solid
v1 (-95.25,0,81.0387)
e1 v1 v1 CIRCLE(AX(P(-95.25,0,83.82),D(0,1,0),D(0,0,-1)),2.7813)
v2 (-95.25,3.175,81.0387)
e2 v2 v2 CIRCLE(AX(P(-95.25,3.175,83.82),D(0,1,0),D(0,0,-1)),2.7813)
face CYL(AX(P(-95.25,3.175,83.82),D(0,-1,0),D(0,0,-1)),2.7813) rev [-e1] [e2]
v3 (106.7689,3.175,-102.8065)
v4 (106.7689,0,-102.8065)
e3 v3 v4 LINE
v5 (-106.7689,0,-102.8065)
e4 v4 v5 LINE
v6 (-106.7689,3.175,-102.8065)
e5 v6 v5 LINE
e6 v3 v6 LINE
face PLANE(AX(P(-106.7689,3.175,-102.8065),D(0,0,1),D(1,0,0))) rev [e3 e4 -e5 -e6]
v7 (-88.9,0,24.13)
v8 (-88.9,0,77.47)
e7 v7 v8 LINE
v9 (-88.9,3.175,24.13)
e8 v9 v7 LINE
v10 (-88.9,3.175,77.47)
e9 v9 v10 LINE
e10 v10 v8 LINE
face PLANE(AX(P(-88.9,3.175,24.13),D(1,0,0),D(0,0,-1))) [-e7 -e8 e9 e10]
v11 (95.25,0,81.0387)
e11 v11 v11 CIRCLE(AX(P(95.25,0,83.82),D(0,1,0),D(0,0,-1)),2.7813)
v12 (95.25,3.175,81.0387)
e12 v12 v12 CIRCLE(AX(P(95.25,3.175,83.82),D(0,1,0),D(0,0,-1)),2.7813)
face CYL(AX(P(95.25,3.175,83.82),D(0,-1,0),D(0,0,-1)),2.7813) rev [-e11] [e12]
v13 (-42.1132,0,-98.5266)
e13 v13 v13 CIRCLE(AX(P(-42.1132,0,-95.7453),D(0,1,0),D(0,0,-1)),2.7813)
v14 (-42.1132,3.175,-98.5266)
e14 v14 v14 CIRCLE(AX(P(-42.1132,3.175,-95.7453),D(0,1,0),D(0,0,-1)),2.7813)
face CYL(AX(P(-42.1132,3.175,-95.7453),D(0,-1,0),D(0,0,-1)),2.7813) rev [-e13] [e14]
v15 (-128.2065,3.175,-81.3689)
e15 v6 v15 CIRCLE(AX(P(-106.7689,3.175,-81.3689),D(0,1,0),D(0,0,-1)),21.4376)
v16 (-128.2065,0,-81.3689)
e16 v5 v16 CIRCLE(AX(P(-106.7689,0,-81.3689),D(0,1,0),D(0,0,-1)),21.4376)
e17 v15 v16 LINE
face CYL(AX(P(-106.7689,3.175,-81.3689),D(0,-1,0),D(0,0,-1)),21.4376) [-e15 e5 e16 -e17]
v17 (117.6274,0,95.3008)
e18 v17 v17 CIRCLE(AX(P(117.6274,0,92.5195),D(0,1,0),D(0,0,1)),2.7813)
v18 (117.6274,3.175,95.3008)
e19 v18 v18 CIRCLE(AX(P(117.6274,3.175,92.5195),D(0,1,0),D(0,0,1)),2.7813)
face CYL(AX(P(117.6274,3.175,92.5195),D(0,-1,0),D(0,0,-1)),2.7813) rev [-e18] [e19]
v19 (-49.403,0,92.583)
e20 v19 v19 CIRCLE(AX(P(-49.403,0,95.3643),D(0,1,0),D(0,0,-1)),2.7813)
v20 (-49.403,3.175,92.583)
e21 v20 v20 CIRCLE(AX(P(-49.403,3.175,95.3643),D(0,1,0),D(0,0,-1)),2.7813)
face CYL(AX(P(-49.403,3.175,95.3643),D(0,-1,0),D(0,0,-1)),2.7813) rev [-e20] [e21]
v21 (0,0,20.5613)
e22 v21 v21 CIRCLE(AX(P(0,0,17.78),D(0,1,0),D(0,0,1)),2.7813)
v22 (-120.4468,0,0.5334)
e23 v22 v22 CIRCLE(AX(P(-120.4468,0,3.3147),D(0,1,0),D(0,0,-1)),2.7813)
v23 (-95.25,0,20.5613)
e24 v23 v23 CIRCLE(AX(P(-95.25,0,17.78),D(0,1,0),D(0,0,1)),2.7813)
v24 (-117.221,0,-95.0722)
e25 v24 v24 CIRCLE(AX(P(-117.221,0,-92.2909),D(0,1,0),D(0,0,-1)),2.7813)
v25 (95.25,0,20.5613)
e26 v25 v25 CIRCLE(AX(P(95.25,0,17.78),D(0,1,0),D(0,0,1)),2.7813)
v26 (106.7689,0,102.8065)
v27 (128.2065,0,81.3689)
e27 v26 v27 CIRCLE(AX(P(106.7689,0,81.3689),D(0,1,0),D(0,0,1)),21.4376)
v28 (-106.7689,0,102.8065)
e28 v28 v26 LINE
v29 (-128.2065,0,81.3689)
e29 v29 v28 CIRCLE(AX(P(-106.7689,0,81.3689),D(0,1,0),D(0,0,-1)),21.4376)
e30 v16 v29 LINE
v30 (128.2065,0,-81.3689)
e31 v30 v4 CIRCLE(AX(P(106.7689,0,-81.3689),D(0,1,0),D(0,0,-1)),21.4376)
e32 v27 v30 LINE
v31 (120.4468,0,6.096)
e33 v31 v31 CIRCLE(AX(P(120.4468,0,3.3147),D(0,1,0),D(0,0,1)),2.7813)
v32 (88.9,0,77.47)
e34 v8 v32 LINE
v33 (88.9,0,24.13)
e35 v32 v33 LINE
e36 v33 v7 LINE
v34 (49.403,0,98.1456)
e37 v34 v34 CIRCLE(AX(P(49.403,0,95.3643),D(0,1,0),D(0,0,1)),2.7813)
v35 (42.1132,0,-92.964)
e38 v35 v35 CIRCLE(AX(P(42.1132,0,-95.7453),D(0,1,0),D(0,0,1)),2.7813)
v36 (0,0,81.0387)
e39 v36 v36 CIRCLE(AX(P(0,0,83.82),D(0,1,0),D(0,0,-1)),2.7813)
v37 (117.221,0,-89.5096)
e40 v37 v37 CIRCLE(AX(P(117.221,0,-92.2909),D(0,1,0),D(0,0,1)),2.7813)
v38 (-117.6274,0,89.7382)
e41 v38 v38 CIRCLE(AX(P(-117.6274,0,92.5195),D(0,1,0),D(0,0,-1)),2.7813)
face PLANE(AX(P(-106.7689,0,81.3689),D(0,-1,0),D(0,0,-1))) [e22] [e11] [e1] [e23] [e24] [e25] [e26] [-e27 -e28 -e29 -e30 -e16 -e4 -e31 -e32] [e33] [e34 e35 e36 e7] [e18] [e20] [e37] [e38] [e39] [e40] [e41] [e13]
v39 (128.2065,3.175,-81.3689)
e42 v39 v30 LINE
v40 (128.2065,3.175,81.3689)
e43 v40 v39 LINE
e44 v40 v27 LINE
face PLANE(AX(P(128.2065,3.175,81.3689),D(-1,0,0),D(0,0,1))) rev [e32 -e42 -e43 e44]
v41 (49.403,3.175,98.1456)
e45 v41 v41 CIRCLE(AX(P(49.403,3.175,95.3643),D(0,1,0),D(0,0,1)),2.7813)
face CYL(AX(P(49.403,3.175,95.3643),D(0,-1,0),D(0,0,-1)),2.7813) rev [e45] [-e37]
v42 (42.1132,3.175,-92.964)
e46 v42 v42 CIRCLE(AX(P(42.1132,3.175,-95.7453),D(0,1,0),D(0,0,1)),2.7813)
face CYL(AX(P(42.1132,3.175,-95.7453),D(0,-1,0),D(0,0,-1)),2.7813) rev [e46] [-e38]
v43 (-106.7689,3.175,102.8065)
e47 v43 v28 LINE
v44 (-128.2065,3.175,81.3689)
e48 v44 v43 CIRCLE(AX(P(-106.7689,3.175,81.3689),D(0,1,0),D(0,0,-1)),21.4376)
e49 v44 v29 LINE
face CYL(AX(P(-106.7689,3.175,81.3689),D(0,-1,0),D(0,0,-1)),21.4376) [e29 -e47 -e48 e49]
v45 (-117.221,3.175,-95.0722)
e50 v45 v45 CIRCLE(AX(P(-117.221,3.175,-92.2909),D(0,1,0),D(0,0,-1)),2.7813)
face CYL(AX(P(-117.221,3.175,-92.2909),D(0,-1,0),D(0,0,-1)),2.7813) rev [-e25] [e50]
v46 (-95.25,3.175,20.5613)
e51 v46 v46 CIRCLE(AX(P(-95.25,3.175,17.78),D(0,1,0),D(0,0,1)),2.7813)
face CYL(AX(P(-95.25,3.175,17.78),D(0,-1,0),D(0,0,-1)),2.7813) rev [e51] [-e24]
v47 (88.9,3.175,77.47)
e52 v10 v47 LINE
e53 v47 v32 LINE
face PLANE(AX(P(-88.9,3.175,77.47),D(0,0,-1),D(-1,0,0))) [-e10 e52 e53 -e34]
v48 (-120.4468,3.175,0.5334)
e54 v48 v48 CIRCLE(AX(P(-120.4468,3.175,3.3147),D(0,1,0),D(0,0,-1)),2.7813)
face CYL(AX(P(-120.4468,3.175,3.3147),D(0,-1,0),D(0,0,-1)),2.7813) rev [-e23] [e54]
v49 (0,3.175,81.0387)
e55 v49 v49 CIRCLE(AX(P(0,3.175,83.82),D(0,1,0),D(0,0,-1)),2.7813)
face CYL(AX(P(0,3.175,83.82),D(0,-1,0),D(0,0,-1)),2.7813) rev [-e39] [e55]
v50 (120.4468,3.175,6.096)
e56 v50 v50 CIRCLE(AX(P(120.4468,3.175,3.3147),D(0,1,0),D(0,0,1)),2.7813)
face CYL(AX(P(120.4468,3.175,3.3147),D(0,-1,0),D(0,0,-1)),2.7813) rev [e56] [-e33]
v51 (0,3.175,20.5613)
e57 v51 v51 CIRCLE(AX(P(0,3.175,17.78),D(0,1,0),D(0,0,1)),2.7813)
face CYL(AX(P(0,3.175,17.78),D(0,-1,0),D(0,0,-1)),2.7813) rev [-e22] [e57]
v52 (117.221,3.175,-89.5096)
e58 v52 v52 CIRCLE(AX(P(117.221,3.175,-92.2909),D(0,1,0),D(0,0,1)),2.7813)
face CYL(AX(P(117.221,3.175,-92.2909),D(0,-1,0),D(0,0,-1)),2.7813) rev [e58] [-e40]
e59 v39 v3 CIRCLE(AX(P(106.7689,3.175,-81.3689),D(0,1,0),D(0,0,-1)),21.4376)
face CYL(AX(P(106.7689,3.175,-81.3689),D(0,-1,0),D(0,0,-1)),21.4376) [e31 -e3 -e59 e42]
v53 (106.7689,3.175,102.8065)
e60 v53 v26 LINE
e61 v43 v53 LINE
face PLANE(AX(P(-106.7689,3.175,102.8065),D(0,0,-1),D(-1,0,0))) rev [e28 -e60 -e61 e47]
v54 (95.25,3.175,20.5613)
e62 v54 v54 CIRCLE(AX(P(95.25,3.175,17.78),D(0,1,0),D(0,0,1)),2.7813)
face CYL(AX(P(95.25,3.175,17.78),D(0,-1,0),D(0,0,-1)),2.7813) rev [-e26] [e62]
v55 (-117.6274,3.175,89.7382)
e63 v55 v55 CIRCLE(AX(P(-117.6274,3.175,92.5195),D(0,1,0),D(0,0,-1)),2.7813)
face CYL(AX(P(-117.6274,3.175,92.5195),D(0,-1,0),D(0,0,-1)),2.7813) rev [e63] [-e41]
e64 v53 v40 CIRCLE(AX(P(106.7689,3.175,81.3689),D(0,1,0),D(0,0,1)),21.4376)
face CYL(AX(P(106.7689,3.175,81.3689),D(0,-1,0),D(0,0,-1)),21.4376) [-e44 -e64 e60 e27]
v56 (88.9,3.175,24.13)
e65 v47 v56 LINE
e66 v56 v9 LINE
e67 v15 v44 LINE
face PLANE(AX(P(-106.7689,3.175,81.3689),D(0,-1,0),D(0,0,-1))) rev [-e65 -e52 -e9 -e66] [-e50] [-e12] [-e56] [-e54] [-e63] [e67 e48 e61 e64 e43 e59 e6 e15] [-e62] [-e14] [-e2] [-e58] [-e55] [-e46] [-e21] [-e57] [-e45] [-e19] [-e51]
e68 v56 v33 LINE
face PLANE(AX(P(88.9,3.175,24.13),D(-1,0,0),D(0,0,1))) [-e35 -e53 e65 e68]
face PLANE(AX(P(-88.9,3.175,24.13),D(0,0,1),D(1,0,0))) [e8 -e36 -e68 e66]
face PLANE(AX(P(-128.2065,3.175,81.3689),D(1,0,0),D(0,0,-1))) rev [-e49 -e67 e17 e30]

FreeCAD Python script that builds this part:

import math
import FreeCAD as App
import Part
import Sketcher
Q = App.Units.Quantity

doc = App.newDocument("Part")
body = doc.addObject("PartDesign::Body", "Body")

# Sketch on XZ plane
sketch1 = body.newObject("Sketcher::SketchObject", "Sketch")
sketch1.AttachmentSupport = (doc.getObject("XZ_Plane"), [""])
sketch1.MapMode = "FlatFace"
sketch1.addGeometry(Part.LineSegment(App.Vector(-106.8, 102.8, 0), App.Vector(106.8, 102.8, 0)), False)
sketch1.addGeometry(Part.ArcOfCircle(Part.Circle(App.Vector(106.8, 81.4, 0), App.Vector(0, 0, 1), 21.4), math.radians(0), math.radians(90)), False)
sketch1.addGeometry(Part.LineSegment(App.Vector(128.2, 81.4, 0), App.Vector(128.2, -81.4, 0)), False)
sketch1.addGeometry(Part.ArcOfCircle(Part.Circle(App.Vector(106.8, -81.4, 0), App.Vector(0, 0, 1), 21.4), math.radians(-90), math.radians(0)), False)
sketch1.addGeometry(Part.LineSegment(App.Vector(106.8, -102.8, 0), App.Vector(-106.8, -102.8, 0)), False)
sketch1.addGeometry(Part.ArcOfCircle(Part.Circle(App.Vector(-106.8, -81.4, 0), App.Vector(0, 0, 1), 21.4), math.radians(-180), math.radians(-90)), False)
sketch1.addGeometry(Part.LineSegment(App.Vector(-128.2, -81.4, 0), App.Vector(-128.2, 81.4, 0)), False)
sketch1.addGeometry(Part.ArcOfCircle(Part.Circle(App.Vector(-106.8, 81.4, 0), App.Vector(0, 0, 1), 21.4), math.radians(90), math.radians(180)), False)
sketch1.addGeometry(Part.Circle(App.Vector(-117.6, 92.5, 0), App.Vector(0, 0, 1), 2.8), False)
sketch1.addGeometry(Part.Circle(App.Vector(-49.4, 95.4, 0), App.Vector(0, 0, 1), 2.8), False)
sketch1.addGeometry(Part.Circle(App.Vector(-120.4, 3.3, 0), App.Vector(0, 0, 1), 2.8), False)
sketch1.addGeometry(Part.Circle(App.Vector(49.4, 95.4, 0), App.Vector(0, 0, 1), 2.8), False)
sketch1.addGeometry(Part.Circle(App.Vector(117.6, 92.5, 0), App.Vector(0, 0, 1), 2.8), False)
sketch1.addGeometry(Part.Circle(App.Vector(120.4, 3.3, 0), App.Vector(0, 0, 1), 2.8), False)
sketch1.addGeometry(Part.Circle(App.Vector(-117.2, -92.3, 0), App.Vector(0, 0, 1), 2.8), False)
sketch1.addGeometry(Part.Circle(App.Vector(-42.1, -95.7, 0), App.Vector(0, 0, 1), 2.8), False)
sketch1.addGeometry(Part.Circle(App.Vector(42.1, -95.7, 0), App.Vector(0, 0, 1), 2.8), False)
sketch1.addGeometry(Part.Circle(App.Vector(117.2, -92.3, 0), App.Vector(0, 0, 1), 2.8), False)
sketch1.addConstraint(Sketcher.Constraint("Tangent", 0, 2, 1, 2))
sketch1.addConstraint(Sketcher.Constraint("Tangent", 1, 1, 2, 1))
sketch1.addConstraint(Sketcher.Constraint("Tangent", 2, 2, 3, 2))
sketch1.addConstraint(Sketcher.Constraint("Tangent", 3, 1, 4, 1))
sketch1.addConstraint(Sketcher.Constraint("Tangent", 4, 2, 5, 2))
sketch1.addConstraint(Sketcher.Constraint("Tangent", 5, 1, 6, 1))
sketch1.addConstraint(Sketcher.Constraint("Tangent", 6, 2, 7, 2))
sketch1.addConstraint(Sketcher.Constraint("Tangent", 7, 1, 0, 1))
sketch1.addConstraint(Sketcher.Constraint("Horizontal", 0))
sketch1.addConstraint(Sketcher.Constraint("Vertical", 2))
sketch1.addConstraint(Sketcher.Constraint("Horizontal", 4))
sketch1.addConstraint(Sketcher.Constraint("Vertical", 6))
sketch1.addConstraint(Sketcher.Constraint("Equal", 1, 3))
sketch1.addConstraint(Sketcher.Constraint("Equal", 3, 5))
sketch1.addConstraint(Sketcher.Constraint("Equal", 5, 7))
sketch1.addConstraint(Sketcher.Constraint("Equal", 8, 9))
sketch1.addConstraint(Sketcher.Constraint("Equal", 9, 10))
sketch1.addConstraint(Sketcher.Constraint("Equal", 10, 11))
sketch1.addConstraint(Sketcher.Constraint("Equal", 11, 12))
sketch1.addConstraint(Sketcher.Constraint("Equal", 12, 13))
sketch1.addConstraint(Sketcher.Constraint("Equal", 13, 14))
sketch1.addConstraint(Sketcher.Constraint("Equal", 14, 15))
sketch1.addConstraint(Sketcher.Constraint("Equal", 15, 16))
sketch1.addConstraint(Sketcher.Constraint("Equal", 16, 17))
sketch1.addConstraint(Sketcher.Constraint("Symmetric", 1, 3, 5, 3, -1, 1))
sketch1.addConstraint(Sketcher.Constraint("Symmetric", 9, 3, 11, 3, -2))
sketch1.addConstraint(Sketcher.Constraint("Symmetric", 8, 3, 12, 3, -2))
sketch1.addConstraint(Sketcher.Constraint("Symmetric", 10, 3, 13, 3, -2))
sketch1.addConstraint(Sketcher.Constraint("Symmetric", 15, 3, 16, 3, -2))
sketch1.addConstraint(Sketcher.Constraint("Symmetric", 14, 3, 17, 3, -2))
sketch1.addConstraint(Sketcher.Constraint("Diameter", 8, Q("0.219 in")))
sketch1.addConstraint(Sketcher.Constraint("Radius", 1, Q("0.844 in")))
sketch1.addConstraint(Sketcher.Constraint("DistanceY", 15, 3, 10, 3, Q("3.9 in")))
sketch1.addConstraint(Sketcher.Constraint("DistanceX", 0, 1, 0, 2, Q("8.407 in")))
sketch1.addConstraint(Sketcher.Constraint("DistanceY", 2, 2, 2, 1, Q("6.407 in")))
sketch1.addConstraint(Sketcher.Constraint("DistanceX", 9, 3, 11, 3, Q("3.89 in")))
sketch1.addConstraint(Sketcher.Constraint("DistanceY", 14, 3, 5, 3, Q("0.43 in")))
sketch1.addConstraint(Sketcher.Constraint("DistanceX", 14, 3, 9, 3, Q("2.67 in")))
sketch1.addConstraint(Sketcher.Constraint("DistanceX", 8, 3, -1, 1, Q("4.631 in")))
sketch1.addConstraint(Sketcher.Constraint("DistanceX", 10, 3, -1, 1, Q("4.742 in")))
sketch1.addConstraint(Sketcher.Constraint("DistanceX", 15, 3, -1, 1, Q("1.658 in")))
sketch1.addConstraint(Sketcher.Constraint("DistanceY", 7, 3, 8, 3, Q("0.439 in")))
sketch1.addConstraint(Sketcher.Constraint("DistanceY", 7, 3, 9, 3, Q("0.551 in")))
sketch1.addConstraint(Sketcher.Constraint("DistanceY", 10, 3, 7, 3, Q("3.073 in")))
pad1 = body.newObject("PartDesign::Pad", "Pad")
pad1.Profile = sketch1
pad1.Length = Q("0.125 in")
pad1.Reversed = True

# Sketch on XZ plane
sketch2 = body.newObject("Sketcher::SketchObject", "Sketch001")
sketch2.AttachmentSupport = (doc.getObject("XZ_Plane"), [""])
sketch2.MapMode = "FlatFace"
sketch2.addGeometry(Part.LineSegment(App.Vector(-89, 24, 0), App.Vector(-89, 77, 0)), False)
sketch2.addGeometry(Part.LineSegment(App.Vector(-89, 77, 0), App.Vector(89, 77, 0)), False)
sketch2.addGeometry(Part.LineSegment(App.Vector(89, 77, 0), App.Vector(89, 24, 0)), False)
sketch2.addGeometry(Part.LineSegment(App.Vector(89, 24, 0), App.Vector(-89, 24, 0)), False)
sketch2.addConstraint(Sketcher.Constraint("Coincident", 0, 2, 1, 1))
sketch2.addConstraint(Sketcher.Constraint("Coincident", 1, 2, 2, 1))
sketch2.addConstraint(Sketcher.Constraint("Coincident", 2, 2, 3, 1))
sketch2.addConstraint(Sketcher.Constraint("Coincident", 3, 2, 0, 1))
sketch2.addConstraint(Sketcher.Constraint("Vertical", 0))
sketch2.addConstraint(Sketcher.Constraint("Horizontal", 1))
sketch2.addConstraint(Sketcher.Constraint("Vertical", 2))
sketch2.addConstraint(Sketcher.Constraint("Horizontal", 3))
sketch2.addConstraint(Sketcher.Constraint("DistanceX", 1, 1, 1, 2, Q("7 in")))
sketch2.addConstraint(Sketcher.Constraint("DistanceY", 0, 1, 0, 2, Q("2.1 in")))
sketch2.addConstraint(Sketcher.Constraint("DistanceX", 0, 2, -1, 1, Q("3.5 in")))
sketch2.addConstraint(Sketcher.Constraint("DistanceY", -1, 1, 0, 2, Q("3.05 in")))
pocket1 = body.newObject("PartDesign::Pocket", "Pocket")
pocket1.Profile = sketch2
pocket1.Length = Q("0.125 in")

# Sketch on XZ plane
sketch3 = body.newObject("Sketcher::SketchObject", "Sketch002")
sketch3.AttachmentSupport = (doc.getObject("XZ_Plane"), [""])
sketch3.MapMode = "FlatFace"
sketch3.addGeometry(Part.Circle(App.Vector(-95.2, 17.8, 0), App.Vector(0, 0, 1), 2.8), False)
sketch3.addGeometry(Part.Circle(App.Vector(0, 17.8, 0), App.Vector(0, 0, 1), 2.8), False)
sketch3.addGeometry(Part.Circle(App.Vector(95.2, 17.8, 0), App.Vector(0, 0, 1), 2.8), False)
sketch3.addGeometry(Part.Circle(App.Vector(95.2, 83.8, 0), App.Vector(0, 0, 1), 2.8), False)
sketch3.addGeometry(Part.Circle(App.Vector(0, 83.8, 0), App.Vector(0, 0, 1), 2.8), False)
sketch3.addGeometry(Part.Circle(App.Vector(-95.2, 83.8, 0), App.Vector(0, 0, 1), 2.8), False)
sketch3.addConstraint(Sketcher.Constraint("Equal", 0, 1))
sketch3.addConstraint(Sketcher.Constraint("Equal", 1, 2))
sketch3.addConstraint(Sketcher.Constraint("Equal", 2, 3))
sketch3.addConstraint(Sketcher.Constraint("Equal", 3, 4))
sketch3.addConstraint(Sketcher.Constraint("Equal", 4, 5))
sketch3.addConstraint(Sketcher.Constraint("Symmetric", 0, 3, 2, 3, -2))
sketch3.addConstraint(Sketcher.Constraint("Symmetric", 3, 3, 5, 3, -2))
sketch3.addConstraint(Sketcher.Constraint("PointOnObject", 1, 3, -2))
sketch3.addConstraint(Sketcher.Constraint("PointOnObject", 4, 3, -2))
sketch3.addConstraint(Sketcher.Constraint("Horizontal", 0, 3, 1, 3))
sketch3.addConstraint(Sketcher.Constraint("Horizontal", 3, 3, 4, 3))
sketch3.addConstraint(Sketcher.Constraint("Vertical", 2, 3, 3, 3))
sketch3.addConstraint(Sketcher.Constraint("Diameter", 0, Q("0.219 in")))
sketch3.addConstraint(Sketcher.Constraint("DistanceY", -1, 1, 0, 3, Q("0.7 in")))
sketch3.addConstraint(Sketcher.Constraint("DistanceY", -1, 1, 3, 3, Q("3.3 in")))
sketch3.addConstraint(Sketcher.Constraint("DistanceX", 0, 3, 2, 3, Q("7.5 in")))
pocket2 = body.newObject("PartDesign::Pocket", "Pocket001")
pocket2.Profile = sketch3
pocket2.Length = Q("0.125 in")

doc.recompute()
